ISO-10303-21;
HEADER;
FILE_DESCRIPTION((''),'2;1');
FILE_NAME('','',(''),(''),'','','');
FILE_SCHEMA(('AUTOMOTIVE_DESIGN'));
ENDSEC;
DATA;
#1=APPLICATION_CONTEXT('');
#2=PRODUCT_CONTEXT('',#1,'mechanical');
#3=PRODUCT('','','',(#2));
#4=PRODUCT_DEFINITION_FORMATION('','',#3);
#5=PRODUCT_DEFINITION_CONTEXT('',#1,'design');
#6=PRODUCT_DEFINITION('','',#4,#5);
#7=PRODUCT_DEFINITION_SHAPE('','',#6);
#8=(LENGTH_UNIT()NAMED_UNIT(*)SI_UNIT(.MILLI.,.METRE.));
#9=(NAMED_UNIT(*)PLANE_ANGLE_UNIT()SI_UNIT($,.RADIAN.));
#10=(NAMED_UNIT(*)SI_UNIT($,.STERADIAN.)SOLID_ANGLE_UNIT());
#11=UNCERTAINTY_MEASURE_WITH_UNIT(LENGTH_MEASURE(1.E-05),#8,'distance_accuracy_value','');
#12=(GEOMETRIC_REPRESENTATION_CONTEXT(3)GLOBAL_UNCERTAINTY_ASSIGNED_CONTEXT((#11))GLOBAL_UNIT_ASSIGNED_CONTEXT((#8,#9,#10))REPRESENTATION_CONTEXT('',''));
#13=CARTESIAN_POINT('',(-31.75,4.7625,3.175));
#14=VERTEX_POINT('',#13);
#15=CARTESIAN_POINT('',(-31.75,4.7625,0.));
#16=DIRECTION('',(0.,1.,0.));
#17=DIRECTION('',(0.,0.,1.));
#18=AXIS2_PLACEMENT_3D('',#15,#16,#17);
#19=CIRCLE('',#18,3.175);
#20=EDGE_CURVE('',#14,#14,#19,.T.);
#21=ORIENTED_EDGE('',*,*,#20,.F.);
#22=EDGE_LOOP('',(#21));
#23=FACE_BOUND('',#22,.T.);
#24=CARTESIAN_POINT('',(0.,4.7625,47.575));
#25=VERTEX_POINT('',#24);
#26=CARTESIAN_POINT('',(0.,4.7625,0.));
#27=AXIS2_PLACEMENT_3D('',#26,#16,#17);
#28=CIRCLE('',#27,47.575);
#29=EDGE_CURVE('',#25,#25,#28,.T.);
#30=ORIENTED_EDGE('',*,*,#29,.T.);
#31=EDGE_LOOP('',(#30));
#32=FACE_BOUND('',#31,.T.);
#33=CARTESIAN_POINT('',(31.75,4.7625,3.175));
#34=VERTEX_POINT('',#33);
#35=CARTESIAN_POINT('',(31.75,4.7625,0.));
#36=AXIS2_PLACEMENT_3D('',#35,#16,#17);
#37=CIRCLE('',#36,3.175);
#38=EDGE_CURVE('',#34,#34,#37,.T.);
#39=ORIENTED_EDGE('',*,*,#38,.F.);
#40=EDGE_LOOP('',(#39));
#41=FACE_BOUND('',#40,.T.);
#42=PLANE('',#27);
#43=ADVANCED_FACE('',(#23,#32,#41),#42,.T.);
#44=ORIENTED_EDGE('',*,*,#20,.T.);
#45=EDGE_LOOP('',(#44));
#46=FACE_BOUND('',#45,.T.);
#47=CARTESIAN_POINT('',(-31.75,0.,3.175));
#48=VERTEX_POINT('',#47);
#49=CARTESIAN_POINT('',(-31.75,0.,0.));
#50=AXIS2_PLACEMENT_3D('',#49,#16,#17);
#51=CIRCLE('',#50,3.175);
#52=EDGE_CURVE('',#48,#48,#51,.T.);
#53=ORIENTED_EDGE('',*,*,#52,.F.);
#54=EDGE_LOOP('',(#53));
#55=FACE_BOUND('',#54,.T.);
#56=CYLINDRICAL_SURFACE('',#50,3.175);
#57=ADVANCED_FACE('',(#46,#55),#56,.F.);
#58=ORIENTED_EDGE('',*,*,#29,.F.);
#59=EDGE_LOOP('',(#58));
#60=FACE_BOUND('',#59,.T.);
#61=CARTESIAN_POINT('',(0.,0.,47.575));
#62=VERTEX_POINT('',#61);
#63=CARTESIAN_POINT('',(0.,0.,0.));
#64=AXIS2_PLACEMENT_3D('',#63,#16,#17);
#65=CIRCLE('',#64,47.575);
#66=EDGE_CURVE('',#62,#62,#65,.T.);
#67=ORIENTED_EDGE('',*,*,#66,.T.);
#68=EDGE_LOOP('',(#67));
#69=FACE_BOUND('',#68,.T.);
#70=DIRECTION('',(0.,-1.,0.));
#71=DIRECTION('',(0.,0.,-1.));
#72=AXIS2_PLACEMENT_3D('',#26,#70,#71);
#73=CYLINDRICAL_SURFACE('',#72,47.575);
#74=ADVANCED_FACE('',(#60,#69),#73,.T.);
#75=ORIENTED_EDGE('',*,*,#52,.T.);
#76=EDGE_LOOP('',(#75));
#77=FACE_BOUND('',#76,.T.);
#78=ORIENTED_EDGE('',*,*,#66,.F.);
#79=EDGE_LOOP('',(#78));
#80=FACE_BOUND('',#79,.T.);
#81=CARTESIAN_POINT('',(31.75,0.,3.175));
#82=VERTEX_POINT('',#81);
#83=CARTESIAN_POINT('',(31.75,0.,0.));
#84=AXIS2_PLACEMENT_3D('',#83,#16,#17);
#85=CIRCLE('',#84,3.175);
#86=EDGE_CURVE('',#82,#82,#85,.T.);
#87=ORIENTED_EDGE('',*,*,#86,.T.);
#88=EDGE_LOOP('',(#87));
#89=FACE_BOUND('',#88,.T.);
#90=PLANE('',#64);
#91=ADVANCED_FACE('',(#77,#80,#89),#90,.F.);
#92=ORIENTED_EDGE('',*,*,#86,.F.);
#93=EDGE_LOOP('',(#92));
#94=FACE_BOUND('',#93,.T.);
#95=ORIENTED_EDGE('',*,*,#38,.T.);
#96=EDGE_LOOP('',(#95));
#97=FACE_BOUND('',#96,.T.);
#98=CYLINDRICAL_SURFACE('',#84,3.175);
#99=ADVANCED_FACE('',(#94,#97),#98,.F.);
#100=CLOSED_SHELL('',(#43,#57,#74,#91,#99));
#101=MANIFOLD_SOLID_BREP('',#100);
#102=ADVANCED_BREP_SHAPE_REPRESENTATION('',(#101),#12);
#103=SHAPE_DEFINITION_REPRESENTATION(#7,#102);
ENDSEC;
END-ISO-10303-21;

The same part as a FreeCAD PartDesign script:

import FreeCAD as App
import Part
import Sketcher

V = App.Vector
Q = App.Units.Quantity

doc = App.newDocument("Part")
body = doc.addObject("PartDesign::Body", "Body")

# Sketch on XZ plane
sketch1 = body.newObject("Sketcher::SketchObject", "Sketch")
sketch1.AttachmentSupport = (doc.getObject("XZ_Plane"), [""])
sketch1.MapMode = "FlatFace"
sketch1.addGeometry(Part.Circle(V(0, 0, 0), V(0, 0, 1), 48), False)
sketch1.addConstraint([
    Sketcher.Constraint("Coincident", 0, 3, -1, 1),
    Sketcher.Constraint("Diameter", 0, Q("95.15 mm")),
])
pad1 = body.newObject("PartDesign::Pad", "Pad")
pad1.Profile = sketch1
pad1.Length = Q("0.1875 in")
pad1.Reversed = True

# Sketch on XZ plane
sketch2 = body.newObject("Sketcher::SketchObject", "Sketch001")
sketch2.AttachmentSupport = (doc.getObject("XZ_Plane"), [""])
sketch2.MapMode = "FlatFace"
sketch2.AttachmentOffset = App.Placement(V(0, 0, -0.1875 * 25.4), App.Rotation())
sketch2.addGeometry([
    Part.Circle(V(31.8, 0, 0), V(0, 0, 1), 3.2),
    Part.Circle(V(-31.8, 0, 0), V(0, 0, 1), 3.2),
], False)
sketch2.addConstraint([
    Sketcher.Constraint("Equal", 0, 1),
    Sketcher.Constraint("Symmetric", 0, 3, 1, 3, -1, 1),
    Sketcher.Constraint("PointOnObject", 0, 3, -1),
    Sketcher.Constraint("Diameter", 0, Q("0.25 in")),
    Sketcher.Constraint("DistanceX", 1, 3, 0, 3, Q("2.5 in")),
])
pocket1 = body.newObject("PartDesign::Pocket", "Pocket")
pocket1.Profile = sketch2
pocket1.Type = "ThroughAll"
pocket1.Reversed = True

doc.recompute()
